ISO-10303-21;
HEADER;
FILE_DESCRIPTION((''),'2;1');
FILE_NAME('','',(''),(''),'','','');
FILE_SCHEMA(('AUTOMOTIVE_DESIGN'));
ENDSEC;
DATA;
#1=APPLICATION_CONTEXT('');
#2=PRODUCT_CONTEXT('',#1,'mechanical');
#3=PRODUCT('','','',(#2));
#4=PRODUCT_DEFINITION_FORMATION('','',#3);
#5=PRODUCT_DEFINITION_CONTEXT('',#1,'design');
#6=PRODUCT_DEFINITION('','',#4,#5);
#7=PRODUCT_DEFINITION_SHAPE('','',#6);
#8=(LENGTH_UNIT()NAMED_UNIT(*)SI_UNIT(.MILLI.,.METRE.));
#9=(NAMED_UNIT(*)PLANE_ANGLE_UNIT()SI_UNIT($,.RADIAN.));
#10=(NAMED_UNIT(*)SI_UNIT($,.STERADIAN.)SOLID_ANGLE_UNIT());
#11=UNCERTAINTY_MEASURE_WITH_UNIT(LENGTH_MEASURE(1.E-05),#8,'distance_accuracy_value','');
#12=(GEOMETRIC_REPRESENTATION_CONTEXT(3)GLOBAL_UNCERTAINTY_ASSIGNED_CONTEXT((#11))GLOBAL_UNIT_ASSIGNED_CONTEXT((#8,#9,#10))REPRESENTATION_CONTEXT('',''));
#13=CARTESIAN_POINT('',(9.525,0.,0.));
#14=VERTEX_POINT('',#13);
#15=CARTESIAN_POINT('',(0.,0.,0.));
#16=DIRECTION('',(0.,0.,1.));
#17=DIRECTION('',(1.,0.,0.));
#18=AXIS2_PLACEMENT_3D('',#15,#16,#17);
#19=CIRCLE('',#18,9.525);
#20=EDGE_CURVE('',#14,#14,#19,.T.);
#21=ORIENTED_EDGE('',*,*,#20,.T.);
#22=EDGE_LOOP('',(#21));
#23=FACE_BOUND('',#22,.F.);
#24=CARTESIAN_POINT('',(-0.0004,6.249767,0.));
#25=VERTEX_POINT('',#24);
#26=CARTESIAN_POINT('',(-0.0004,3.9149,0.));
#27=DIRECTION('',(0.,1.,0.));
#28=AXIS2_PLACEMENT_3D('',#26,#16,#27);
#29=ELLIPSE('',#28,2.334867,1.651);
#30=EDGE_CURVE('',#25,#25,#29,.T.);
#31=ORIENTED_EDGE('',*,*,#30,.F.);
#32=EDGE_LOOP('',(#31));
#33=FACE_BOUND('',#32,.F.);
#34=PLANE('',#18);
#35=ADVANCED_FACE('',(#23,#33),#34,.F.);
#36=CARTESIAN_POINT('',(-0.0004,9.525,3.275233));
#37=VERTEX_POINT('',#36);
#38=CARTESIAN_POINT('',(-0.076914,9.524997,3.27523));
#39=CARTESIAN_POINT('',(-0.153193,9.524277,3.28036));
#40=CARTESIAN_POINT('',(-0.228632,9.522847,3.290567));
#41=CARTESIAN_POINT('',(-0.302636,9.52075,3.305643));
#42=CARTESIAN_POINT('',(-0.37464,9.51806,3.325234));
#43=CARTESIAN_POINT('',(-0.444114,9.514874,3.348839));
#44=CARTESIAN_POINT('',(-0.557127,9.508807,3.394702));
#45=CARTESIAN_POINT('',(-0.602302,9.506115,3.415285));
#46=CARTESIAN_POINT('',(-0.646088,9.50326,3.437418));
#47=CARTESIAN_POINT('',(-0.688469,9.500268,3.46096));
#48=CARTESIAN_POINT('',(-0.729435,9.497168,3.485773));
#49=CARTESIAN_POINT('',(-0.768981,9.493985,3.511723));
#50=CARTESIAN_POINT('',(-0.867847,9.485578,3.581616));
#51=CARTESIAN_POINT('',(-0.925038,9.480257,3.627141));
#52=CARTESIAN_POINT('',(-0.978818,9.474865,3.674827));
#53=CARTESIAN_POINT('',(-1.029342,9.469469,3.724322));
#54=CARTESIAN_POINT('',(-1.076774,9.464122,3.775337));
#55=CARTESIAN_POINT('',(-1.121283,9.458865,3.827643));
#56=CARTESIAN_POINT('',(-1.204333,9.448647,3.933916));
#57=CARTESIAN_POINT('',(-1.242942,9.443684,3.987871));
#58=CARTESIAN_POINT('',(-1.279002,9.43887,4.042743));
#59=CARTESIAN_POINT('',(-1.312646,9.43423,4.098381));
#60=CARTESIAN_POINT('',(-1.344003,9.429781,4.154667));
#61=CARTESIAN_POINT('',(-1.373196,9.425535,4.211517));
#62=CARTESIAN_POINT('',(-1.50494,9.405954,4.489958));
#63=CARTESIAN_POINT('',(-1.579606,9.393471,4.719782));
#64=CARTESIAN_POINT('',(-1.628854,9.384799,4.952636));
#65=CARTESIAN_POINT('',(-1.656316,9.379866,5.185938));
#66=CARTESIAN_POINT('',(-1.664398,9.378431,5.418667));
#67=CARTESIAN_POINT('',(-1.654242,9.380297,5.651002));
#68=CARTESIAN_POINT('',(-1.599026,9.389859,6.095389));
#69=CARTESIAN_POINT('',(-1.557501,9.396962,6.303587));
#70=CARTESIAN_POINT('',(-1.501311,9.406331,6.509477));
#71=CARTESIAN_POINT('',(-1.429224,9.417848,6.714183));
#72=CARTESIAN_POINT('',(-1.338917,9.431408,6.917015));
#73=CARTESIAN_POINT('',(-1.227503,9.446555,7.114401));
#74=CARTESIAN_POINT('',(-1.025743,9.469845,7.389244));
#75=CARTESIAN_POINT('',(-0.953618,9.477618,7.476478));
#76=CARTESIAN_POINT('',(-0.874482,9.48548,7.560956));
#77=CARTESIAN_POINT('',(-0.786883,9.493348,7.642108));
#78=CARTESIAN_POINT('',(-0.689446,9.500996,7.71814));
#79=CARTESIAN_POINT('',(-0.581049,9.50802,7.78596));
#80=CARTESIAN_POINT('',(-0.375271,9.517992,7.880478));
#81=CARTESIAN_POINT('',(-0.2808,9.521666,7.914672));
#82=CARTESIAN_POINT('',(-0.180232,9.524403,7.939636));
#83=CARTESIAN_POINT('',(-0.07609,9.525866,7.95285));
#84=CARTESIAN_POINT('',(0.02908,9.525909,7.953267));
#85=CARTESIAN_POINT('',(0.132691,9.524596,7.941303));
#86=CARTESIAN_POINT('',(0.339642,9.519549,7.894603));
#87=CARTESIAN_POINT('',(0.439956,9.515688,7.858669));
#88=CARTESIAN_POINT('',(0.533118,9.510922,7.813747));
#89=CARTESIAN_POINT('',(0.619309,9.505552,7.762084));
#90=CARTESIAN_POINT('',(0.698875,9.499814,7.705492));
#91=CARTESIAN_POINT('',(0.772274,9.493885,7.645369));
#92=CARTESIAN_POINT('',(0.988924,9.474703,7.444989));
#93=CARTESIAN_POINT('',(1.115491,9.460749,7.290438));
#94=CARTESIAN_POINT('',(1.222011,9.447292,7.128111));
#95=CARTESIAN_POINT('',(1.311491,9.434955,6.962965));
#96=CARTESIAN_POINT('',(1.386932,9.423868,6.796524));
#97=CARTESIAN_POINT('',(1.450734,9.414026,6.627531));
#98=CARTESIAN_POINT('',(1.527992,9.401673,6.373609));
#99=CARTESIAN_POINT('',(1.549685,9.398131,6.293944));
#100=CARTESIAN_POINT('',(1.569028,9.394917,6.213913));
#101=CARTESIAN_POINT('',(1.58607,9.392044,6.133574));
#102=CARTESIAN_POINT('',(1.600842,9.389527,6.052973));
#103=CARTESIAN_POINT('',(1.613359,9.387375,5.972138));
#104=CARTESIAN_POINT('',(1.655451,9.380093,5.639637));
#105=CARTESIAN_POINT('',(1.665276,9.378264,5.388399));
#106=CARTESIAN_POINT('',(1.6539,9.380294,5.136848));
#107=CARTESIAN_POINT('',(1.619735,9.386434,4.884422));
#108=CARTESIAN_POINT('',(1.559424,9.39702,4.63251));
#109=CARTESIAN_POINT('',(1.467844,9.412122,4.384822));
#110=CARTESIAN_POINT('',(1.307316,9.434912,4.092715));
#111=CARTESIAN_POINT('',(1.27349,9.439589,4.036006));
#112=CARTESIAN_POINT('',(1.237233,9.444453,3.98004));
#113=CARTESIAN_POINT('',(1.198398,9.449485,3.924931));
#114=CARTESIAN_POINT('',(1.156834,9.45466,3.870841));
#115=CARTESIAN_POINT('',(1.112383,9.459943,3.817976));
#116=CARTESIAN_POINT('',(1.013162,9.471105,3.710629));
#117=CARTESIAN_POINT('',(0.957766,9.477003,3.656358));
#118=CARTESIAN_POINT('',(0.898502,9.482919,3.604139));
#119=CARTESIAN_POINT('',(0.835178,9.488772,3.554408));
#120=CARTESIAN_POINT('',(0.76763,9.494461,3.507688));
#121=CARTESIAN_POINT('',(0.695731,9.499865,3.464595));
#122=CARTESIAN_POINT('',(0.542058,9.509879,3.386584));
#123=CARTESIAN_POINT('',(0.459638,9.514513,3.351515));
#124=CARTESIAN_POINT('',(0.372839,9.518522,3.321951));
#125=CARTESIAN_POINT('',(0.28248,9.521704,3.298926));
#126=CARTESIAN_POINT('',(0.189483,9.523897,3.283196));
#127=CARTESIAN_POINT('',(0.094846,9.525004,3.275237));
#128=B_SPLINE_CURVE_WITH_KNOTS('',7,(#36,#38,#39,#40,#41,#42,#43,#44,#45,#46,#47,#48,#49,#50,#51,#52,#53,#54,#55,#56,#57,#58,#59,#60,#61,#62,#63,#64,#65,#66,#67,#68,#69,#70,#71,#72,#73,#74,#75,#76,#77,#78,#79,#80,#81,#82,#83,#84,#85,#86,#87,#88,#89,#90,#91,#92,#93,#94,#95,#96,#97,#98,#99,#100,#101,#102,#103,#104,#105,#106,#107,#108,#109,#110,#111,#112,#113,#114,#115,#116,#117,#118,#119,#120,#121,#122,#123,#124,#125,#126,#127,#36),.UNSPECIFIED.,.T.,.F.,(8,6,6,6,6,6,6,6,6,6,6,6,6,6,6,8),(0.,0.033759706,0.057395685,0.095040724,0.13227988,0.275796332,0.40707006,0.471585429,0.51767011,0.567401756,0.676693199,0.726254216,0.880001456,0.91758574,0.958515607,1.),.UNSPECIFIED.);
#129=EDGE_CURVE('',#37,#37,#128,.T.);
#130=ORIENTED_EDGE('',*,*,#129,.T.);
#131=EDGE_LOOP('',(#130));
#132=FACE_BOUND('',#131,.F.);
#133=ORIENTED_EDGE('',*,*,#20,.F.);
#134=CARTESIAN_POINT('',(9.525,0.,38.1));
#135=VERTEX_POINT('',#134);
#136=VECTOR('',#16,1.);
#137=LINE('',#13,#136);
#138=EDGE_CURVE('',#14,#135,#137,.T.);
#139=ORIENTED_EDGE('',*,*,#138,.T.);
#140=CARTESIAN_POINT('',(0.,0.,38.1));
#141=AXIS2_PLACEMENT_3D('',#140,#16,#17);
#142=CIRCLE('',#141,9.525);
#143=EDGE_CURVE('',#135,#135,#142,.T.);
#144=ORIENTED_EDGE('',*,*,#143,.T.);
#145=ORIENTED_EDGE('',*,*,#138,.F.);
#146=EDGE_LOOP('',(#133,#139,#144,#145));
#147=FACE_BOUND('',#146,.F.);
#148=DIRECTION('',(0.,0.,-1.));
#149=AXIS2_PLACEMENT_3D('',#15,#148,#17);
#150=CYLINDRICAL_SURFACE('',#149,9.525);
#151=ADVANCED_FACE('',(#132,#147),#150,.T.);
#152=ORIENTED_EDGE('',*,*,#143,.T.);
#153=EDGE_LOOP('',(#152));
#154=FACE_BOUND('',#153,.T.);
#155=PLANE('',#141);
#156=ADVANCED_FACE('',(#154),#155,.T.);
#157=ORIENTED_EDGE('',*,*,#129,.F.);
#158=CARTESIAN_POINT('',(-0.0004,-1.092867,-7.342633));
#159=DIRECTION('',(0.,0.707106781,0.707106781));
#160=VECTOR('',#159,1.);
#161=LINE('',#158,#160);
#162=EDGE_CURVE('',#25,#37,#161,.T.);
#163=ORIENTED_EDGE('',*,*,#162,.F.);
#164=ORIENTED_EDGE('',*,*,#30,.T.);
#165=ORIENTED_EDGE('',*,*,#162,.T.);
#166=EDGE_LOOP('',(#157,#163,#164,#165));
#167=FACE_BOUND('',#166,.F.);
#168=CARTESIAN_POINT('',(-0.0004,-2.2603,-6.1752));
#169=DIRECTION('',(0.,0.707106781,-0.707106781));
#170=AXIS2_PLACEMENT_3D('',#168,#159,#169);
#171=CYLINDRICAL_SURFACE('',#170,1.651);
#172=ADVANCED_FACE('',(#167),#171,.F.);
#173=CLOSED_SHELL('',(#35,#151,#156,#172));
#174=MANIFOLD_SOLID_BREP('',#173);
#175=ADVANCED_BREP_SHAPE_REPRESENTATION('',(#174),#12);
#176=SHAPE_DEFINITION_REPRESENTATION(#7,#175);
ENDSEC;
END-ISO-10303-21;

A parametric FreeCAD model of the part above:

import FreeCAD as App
import Part
import Sketcher
from FreeCAD import Vector
Q = App.Units.Quantity

doc = App.newDocument("Part")
body = doc.addObject("PartDesign::Body", "Body")

# Sketch on XY plane
sketch1 = body.newObject("Sketcher::SketchObject", "Sketch")
sketch1.AttachmentSupport = (doc.getObject("XY_Plane"), [""])
sketch1.MapMode = "FlatFace"
sketch1.addGeometry(Part.Circle(Vector(0, 0, 0), Vector(0, 0, 1), 10), False)
sketch1.addConstraint([
    Sketcher.Constraint("Coincident", 0, 3, -1, 1),
    Sketcher.Constraint("Diameter", 0, Q("0.75 in")),
])
pad1 = body.newObject("PartDesign::Pad", "Pad")
pad1.Profile = sketch1
pad1.Length = Q("1.5 in")

# Sketch on an angled plane
sketch2 = body.newObject("Sketcher::SketchObject", "Sketch001")
sketch2.Placement = App.Placement(Vector(0, 9.525, 0), App.Rotation(Vector(-1, 0, 0), Vector(0, -0.707106781, 0.707106781), Vector(0, 0.707106781, 0.707106781), "ZXY"))
sketch2.addGeometry(Part.Circle(Vector(0, 4, 0), Vector(0, 0, 1), 1.6), False)
sketch2.addConstraint([
    Sketcher.Constraint("PointOnObject", 0, 3, -2),
    Sketcher.Constraint("Diameter", 0, Q("0.125 in")),
    Sketcher.Constraint("DistanceY", -1, 1, 0, 3, 3.9683),
])
pad2 = body.newObject("PartDesign::Pad", "Pad001")
pad2.Profile = sketch2
pad2.Length = Q("1 in")
pad2.Midplane = True

# Sketch on an angled plane
sketch3 = body.newObject("Sketcher::SketchObject", "Sketch002")
sketch3.Placement = App.Placement(Vector(0, -4.21775, -4.21775), App.Rotation(Vector(0, 0.707106781, -0.707106781), Vector(0.999999999, 0, 0), Vector(0, -0.707106781, -0.707106781), "ZXY"))
sketch3.addGeometry(Part.Circle(Vector(2.8, 0, 0), Vector(0, 0, 1), 1.7), False)
sketch3.addConstraint([
    Sketcher.Constraint("Diameter", 0, Q("0.13 in")),
    Sketcher.Constraint("DistanceX", -1, 1, 0, 3, Q("0.1089882 in")),
    Sketcher.Constraint("DistanceY", 0, 3, -1, 1, 0.0004),
])
doc.recompute()
hole = body.newObject("PartDesign::Hole", "Hole")
hole.Profile = sketch3
hole.ThreadType = "None"
hole.Diameter = Q("0.13 in")
hole.DepthType = "Dimension"
hole.Depth = Q("1 in")
hole.DrillPoint = "Angled"
hole.DrillPointAngle = 118

doc.recompute()
